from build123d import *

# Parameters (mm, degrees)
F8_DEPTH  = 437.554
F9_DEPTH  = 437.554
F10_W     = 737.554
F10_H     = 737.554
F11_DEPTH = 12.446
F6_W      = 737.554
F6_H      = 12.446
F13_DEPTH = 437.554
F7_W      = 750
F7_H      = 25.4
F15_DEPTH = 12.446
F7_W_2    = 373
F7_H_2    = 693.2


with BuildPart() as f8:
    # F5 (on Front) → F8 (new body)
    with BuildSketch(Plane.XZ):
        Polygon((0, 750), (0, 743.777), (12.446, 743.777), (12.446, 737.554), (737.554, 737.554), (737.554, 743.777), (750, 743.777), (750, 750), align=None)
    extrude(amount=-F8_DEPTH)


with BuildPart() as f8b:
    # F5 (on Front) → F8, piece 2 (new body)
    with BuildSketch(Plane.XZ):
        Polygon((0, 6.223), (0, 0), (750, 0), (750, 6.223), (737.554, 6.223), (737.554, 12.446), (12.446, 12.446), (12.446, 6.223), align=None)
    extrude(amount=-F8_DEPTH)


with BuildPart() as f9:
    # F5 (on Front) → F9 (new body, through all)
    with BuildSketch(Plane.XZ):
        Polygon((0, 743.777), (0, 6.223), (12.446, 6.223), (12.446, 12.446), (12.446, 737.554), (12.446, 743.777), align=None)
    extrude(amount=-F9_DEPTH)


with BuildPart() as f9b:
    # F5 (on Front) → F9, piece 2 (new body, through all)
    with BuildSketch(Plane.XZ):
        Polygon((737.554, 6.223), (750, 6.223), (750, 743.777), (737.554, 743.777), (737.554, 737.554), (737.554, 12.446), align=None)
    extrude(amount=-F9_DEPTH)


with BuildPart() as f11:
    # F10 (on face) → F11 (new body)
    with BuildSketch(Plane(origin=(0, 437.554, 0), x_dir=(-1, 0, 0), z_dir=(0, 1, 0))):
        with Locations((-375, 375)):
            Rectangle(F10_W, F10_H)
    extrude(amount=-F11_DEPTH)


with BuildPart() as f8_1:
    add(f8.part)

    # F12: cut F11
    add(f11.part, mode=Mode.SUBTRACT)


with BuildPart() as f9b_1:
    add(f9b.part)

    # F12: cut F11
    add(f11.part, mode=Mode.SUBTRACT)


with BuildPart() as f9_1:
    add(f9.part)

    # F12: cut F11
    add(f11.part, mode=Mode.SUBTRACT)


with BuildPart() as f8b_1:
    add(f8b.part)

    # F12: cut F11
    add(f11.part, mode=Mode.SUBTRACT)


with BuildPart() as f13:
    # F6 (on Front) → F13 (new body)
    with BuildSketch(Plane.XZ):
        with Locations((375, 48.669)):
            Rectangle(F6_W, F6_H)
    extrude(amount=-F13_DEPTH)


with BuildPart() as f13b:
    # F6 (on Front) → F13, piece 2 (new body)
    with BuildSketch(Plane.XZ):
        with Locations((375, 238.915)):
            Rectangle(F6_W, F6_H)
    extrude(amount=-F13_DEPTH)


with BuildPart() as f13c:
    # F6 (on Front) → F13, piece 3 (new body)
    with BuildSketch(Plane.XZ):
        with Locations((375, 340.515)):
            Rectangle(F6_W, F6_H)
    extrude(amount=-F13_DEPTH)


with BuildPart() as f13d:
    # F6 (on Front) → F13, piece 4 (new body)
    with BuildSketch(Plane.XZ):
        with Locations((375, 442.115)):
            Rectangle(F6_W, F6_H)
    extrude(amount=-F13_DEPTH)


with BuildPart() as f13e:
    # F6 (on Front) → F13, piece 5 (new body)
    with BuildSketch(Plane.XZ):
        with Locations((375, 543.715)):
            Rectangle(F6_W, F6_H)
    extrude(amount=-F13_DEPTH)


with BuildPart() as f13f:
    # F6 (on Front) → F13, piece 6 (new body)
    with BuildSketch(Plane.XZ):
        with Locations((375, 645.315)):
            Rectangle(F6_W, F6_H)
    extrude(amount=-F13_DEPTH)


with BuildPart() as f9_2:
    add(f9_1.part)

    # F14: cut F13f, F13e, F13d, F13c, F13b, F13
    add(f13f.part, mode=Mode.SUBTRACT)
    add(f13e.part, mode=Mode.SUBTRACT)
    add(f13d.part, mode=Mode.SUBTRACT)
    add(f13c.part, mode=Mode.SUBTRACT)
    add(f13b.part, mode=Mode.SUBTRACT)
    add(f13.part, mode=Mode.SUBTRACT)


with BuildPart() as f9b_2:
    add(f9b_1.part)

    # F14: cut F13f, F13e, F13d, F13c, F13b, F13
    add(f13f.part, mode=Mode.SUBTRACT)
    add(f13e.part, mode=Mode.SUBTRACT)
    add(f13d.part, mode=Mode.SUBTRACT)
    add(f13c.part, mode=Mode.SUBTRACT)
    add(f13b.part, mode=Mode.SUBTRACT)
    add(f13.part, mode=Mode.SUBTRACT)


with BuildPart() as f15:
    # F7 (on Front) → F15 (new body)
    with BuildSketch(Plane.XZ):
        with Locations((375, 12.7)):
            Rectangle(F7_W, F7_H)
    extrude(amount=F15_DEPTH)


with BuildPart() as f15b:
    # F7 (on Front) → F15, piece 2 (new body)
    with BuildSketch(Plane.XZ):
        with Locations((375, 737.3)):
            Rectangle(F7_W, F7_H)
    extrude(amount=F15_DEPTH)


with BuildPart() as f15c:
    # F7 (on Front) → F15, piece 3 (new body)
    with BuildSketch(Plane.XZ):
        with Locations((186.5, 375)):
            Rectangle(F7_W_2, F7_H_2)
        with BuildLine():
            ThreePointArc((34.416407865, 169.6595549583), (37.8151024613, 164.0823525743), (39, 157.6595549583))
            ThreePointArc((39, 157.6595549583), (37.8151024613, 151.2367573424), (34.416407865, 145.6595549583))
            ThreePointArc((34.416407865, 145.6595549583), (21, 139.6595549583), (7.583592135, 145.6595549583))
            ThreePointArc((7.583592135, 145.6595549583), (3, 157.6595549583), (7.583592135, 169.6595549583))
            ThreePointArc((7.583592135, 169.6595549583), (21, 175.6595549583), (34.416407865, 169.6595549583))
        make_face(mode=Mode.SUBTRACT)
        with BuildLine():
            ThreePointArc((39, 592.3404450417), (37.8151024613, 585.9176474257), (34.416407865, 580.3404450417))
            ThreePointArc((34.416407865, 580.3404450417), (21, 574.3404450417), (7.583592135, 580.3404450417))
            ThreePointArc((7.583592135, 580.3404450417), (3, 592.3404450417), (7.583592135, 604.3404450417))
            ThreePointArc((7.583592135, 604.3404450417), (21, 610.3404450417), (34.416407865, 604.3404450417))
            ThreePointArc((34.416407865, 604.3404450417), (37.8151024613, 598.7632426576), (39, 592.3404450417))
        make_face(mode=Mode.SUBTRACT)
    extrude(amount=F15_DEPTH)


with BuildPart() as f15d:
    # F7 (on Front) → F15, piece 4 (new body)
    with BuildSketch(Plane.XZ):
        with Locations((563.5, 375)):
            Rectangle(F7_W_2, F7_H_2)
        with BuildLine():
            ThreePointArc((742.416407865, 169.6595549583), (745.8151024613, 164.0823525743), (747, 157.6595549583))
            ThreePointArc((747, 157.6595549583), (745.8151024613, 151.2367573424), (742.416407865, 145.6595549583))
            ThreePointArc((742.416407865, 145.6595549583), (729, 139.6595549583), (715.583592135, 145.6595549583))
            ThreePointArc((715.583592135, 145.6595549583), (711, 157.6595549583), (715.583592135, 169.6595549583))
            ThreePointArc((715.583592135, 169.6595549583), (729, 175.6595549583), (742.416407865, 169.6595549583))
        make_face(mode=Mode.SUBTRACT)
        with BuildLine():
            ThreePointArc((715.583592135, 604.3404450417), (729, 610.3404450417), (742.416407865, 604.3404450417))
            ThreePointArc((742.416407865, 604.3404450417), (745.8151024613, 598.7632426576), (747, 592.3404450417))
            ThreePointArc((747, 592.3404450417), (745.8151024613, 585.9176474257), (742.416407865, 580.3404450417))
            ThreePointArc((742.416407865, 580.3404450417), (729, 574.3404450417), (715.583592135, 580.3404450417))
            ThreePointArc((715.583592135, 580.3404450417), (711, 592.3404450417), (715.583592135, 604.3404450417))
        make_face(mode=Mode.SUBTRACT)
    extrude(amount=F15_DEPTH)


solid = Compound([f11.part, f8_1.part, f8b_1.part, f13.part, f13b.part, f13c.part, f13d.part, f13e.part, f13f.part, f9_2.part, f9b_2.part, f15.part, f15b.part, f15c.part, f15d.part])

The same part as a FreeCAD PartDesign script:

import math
import FreeCAD as App
import Part
import Sketcher
from FreeCAD import Vector
Q = App.Units.Quantity

doc = App.newDocument("Part")
body = doc.addObject("PartDesign::Body", "Body")

sketch1 = body.newObject("Sketcher::SketchObject", "Sketch")
sketch1.AttachmentSupport = (doc.getObject("XZ_Plane"), [""])
sketch1.MapMode = "FlatFace"
sketch1.addGeometry([
    Part.LineSegment(Vector(0, 750, 0), Vector(0, 743.777, 0)),
    Part.LineSegment(Vector(0, 743.777, 0), Vector(12.446, 743.777, 0)),
    Part.LineSegment(Vector(12.446, 743.777, 0), Vector(12.446, 737.554, 0)),
    Part.LineSegment(Vector(12.446, 737.554, 0), Vector(737.554, 737.554, 0)),
    Part.LineSegment(Vector(737.554, 737.554, 0), Vector(737.554, 743.777, 0)),
    Part.LineSegment(Vector(737.554, 743.777, 0), Vector(750, 743.777, 0)),
    Part.LineSegment(Vector(750, 743.777, 0), Vector(750, 750, 0)),
    Part.LineSegment(Vector(750, 750, 0), Vector(0, 750, 0)),
], False)
sketch1.addConstraint([
    Sketcher.Constraint("Coincident", 0, 2, 1, 1),
    Sketcher.Constraint("Coincident", 1, 2, 2, 1),
    Sketcher.Constraint("Coincident", 2, 2, 3, 1),
    Sketcher.Constraint("Coincident", 3, 2, 4, 1),
    Sketcher.Constraint("Coincident", 4, 2, 5, 1),
    Sketcher.Constraint("Coincident", 5, 2, 6, 1),
    Sketcher.Constraint("Coincident", 6, 2, 7, 1),
    Sketcher.Constraint("Coincident", 7, 2, 0, 1),
    Sketcher.Constraint("Vertical", 0),
    Sketcher.Constraint("Horizontal", 1),
    Sketcher.Constraint("Vertical", 2),
    Sketcher.Constraint("Horizontal", 3),
    Sketcher.Constraint("Vertical", 4),
    Sketcher.Constraint("Horizontal", 5),
    Sketcher.Constraint("Vertical", 6),
    Sketcher.Constraint("Horizontal", 7),
    Sketcher.Constraint("PointOnObject", 0, 2, -2),
    Sketcher.Constraint("Horizontal", 1, 2, 4, 2),
    Sketcher.Constraint("Equal", 1, 5),
    Sketcher.Constraint("Equal", 0, 2),
    Sketcher.Constraint("DistanceX", 7, 2, 7, 1, Q("750 mm")),
    Sketcher.Constraint("DistanceY", -1, 1, 6, 2, Q("750 mm")),
    Sketcher.Constraint("DistanceX", 1, 1, 1, 2, Q("12.446 mm")),
    Sketcher.Constraint("DistanceY", 0, 2, 0, 1, Q("6.223 mm")),
])
pad1 = body.newObject("PartDesign::Pad", "Pad")
pad1.Profile = sketch1
pad1.Length = 437.554
pad1.Reversed = True
body2 = doc.addObject("PartDesign::Body", "Body001")

sketch2 = body2.newObject("Sketcher::SketchObject", "Sketch001")
sketch2.AttachmentSupport = (doc.getObject("XZ_Plane001"), [""])
sketch2.MapMode = "FlatFace"
sketch2.addGeometry([
    Part.LineSegment(Vector(0, 6.223, 0), Vector(0, 0, 0)),
    Part.LineSegment(Vector(0, 0, 0), Vector(750, 0, 0)),
    Part.LineSegment(Vector(750, 0, 0), Vector(750, 6.223, 0)),
    Part.LineSegment(Vector(750, 6.223, 0), Vector(737.554, 6.223, 0)),
    Part.LineSegment(Vector(737.554, 6.223, 0), Vector(737.554, 12.446, 0)),
    Part.LineSegment(Vector(737.554, 12.446, 0), Vector(12.446, 12.446, 0)),
    Part.LineSegment(Vector(12.446, 12.446, 0), Vector(12.446, 6.223, 0)),
    Part.LineSegment(Vector(12.446, 6.223, 0), Vector(0, 6.223, 0)),
], False)
sketch2.addConstraint([
    Sketcher.Constraint("Coincident", 0, 2, 1, 1),
    Sketcher.Constraint("Coincident", 1, 2, 2, 1),
    Sketcher.Constraint("Coincident", 2, 2, 3, 1),
    Sketcher.Constraint("Coincident", 3, 2, 4, 1),
    Sketcher.Constraint("Coincident", 4, 2, 5, 1),
    Sketcher.Constraint("Coincident", 5, 2, 6, 1),
    Sketcher.Constraint("Coincident", 6, 2, 7, 1),
    Sketcher.Constraint("Coincident", 7, 2, 0, 1),
    Sketcher.Constraint("Vertical", 0),
    Sketcher.Constraint("Horizontal", 1),
    Sketcher.Constraint("Vertical", 2),
    Sketcher.Constraint("Horizontal", 3),
    Sketcher.Constraint("Vertical", 4),
    Sketcher.Constraint("Horizontal", 5),
    Sketcher.Constraint("Vertical", 6),
    Sketcher.Constraint("Horizontal", 7),
    Sketcher.Constraint("Coincident", 0, 2, -1, 1),
    Sketcher.Constraint("Horizontal", 3, 2, 6, 2),
    Sketcher.Constraint("Equal", 3, 7),
    Sketcher.Constraint("Equal", 2, 4),
    Sketcher.Constraint("DistanceX", 1, 1, 1, 2, Q("750 mm")),
    Sketcher.Constraint("DistanceX", 3, 2, 3, 1, Q("12.446 mm")),
    Sketcher.Constraint("DistanceY", 0, 2, 0, 1, Q("6.223 mm")),
])
pad2 = body2.newObject("PartDesign::Pad", "Pad001")
pad2.Profile = sketch2
pad2.Length = 437.554
pad2.Reversed = True
body3 = doc.addObject("PartDesign::Body", "Body002")

sketch3 = body3.newObject("Sketcher::SketchObject", "Sketch002")
sketch3.AttachmentSupport = (doc.getObject("XZ_Plane002"), [""])
sketch3.MapMode = "FlatFace"
sketch3.addGeometry([
    Part.LineSegment(Vector(0, 743.777, 0), Vector(0, 6.223, 0)),
    Part.LineSegment(Vector(0, 6.223, 0), Vector(12.446, 6.223, 0)),
    Part.LineSegment(Vector(12.446, 6.223, 0), Vector(12.446, 743.777, 0)),
    Part.LineSegment(Vector(12.446, 743.777, 0), Vector(0, 743.777, 0)),
], False)
sketch3.addConstraint([
    Sketcher.Constraint("Coincident", 0, 2, 1, 1),
    Sketcher.Constraint("Coincident", 1, 2, 2, 1),
    Sketcher.Constraint("Coincident", 2, 2, 3, 1),
    Sketcher.Constraint("Coincident", 3, 2, 0, 1),
    Sketcher.Constraint("Vertical", 0),
    Sketcher.Constraint("Horizontal", 1),
    Sketcher.Constraint("Vertical", 2),
    Sketcher.Constraint("Horizontal", 3),
    Sketcher.Constraint("PointOnObject", 0, 2, -2),
    Sketcher.Constraint("DistanceX", 1, 1, 1, 2, Q("12.446 mm")),
    Sketcher.Constraint("DistanceY", 0, 2, 0, 1, Q("737.554 mm")),
    Sketcher.Constraint("DistanceY", -1, 1, 0, 2, Q("6.223 mm")),
])
pad3 = body3.newObject("PartDesign::Pad", "Pad002")
pad3.Profile = sketch3
pad3.Length = 437.554
pad3.Reversed = True
body4 = doc.addObject("PartDesign::Body", "Body003")

sketch4 = body4.newObject("Sketcher::SketchObject", "Sketch003")
sketch4.AttachmentSupport = (doc.getObject("XZ_Plane003"), [""])
sketch4.MapMode = "FlatFace"
sketch4.addGeometry([
    Part.LineSegment(Vector(737.554, 6.223, 0), Vector(750, 6.223, 0)),
    Part.LineSegment(Vector(750, 6.223, 0), Vector(750, 743.777, 0)),
    Part.LineSegment(Vector(750, 743.777, 0), Vector(737.554, 743.777, 0)),
    Part.LineSegment(Vector(737.554, 743.777, 0), Vector(737.554, 6.223, 0)),
], False)
sketch4.addConstraint([
    Sketcher.Constraint("Coincident", 0, 2, 1, 1),
    Sketcher.Constraint("Coincident", 1, 2, 2, 1),
    Sketcher.Constraint("Coincident", 2, 2, 3, 1),
    Sketcher.Constraint("Coincident", 3, 2, 0, 1),
    Sketcher.Constraint("Horizontal", 0),
    Sketcher.Constraint("Vertical", 1),
    Sketcher.Constraint("Horizontal", 2),
    Sketcher.Constraint("Vertical", 3),
    Sketcher.Constraint("DistanceX", -1, 1, 0, 2, Q("750 mm")),
    Sketcher.Constraint("DistanceX", 0, 1, 0, 2, Q("12.446 mm")),
    Sketcher.Constraint("DistanceY", 1, 1, 1, 2, Q("737.554 mm")),
    Sketcher.Constraint("DistanceY", -1, 1, 0, 2, Q("6.223 mm")),
])
pad4 = body4.newObject("PartDesign::Pad", "Pad003")
pad4.Profile = sketch4
pad4.Length = 437.554
pad4.Reversed = True
body5 = doc.addObject("PartDesign::Body", "Body004")

sketch5 = body5.newObject("Sketcher::SketchObject", "Sketch004")
sketch5.AttachmentSupport = (doc.getObject("XZ_Plane004"), [""])
sketch5.MapMode = "FlatFace"
sketch5.AttachmentOffset = App.Placement(Vector(0, 0, -437.554), App.Rotation())
sketch5.addGeometry([
    Part.LineSegment(Vector(743.777, 743.777, 0), Vector(743.777, 6.223, 0)),
    Part.LineSegment(Vector(743.777, 6.223, 0), Vector(6.223, 6.223, 0)),
    Part.LineSegment(Vector(6.223, 6.223, 0), Vector(6.223, 743.777, 0)),
    Part.LineSegment(Vector(6.223, 743.777, 0), Vector(743.777, 743.777, 0)),
], False)
sketch5.addConstraint([
    Sketcher.Constraint("Coincident", 0, 2, 1, 1),
    Sketcher.Constraint("Coincident", 1, 2, 2, 1),
    Sketcher.Constraint("Coincident", 2, 2, 3, 1),
    Sketcher.Constraint("Coincident", 3, 2, 0, 1),
    Sketcher.Constraint("Vertical", 0),
    Sketcher.Constraint("Horizontal", 1),
    Sketcher.Constraint("Vertical", 2),
    Sketcher.Constraint("Horizontal", 3),
    Sketcher.Constraint("Equal", 3, 0),
    Sketcher.Constraint("DistanceX", 1, 2, 1, 1, Q("737.554 mm")),
    Sketcher.Constraint("DistanceX", -1, 1, 0, 2, Q("743.777 mm")),
    Sketcher.Constraint("DistanceY", -1, 1, 0, 2, Q("6.223 mm")),
])
pad5 = body5.newObject("PartDesign::Pad", "Pad004")
pad5.Profile = sketch5
pad5.Length = 12.446
doc.recompute()

body6 = doc.addObject("PartDesign::Body", "Body005")
body6.BaseFeature = body5
boolean = body.newObject("PartDesign::Boolean", "Boolean")
boolean.Type = "Cut"
boolean.addObjects([body6])
doc.recompute()

body7 = doc.addObject("PartDesign::Body", "Body006")
body7.BaseFeature = body5
boolean2 = body4.newObject("PartDesign::Boolean", "Boolean001")
boolean2.Type = "Cut"
boolean2.addObjects([body7])
doc.recompute()

body8 = doc.addObject("PartDesign::Body", "Body007")
body8.BaseFeature = body5
boolean3 = body3.newObject("PartDesign::Boolean", "Boolean002")
boolean3.Type = "Cut"
boolean3.addObjects([body8])
doc.recompute()

body9 = doc.addObject("PartDesign::Body", "Body008")
body9.BaseFeature = body5
boolean4 = body2.newObject("PartDesign::Boolean", "Boolean003")
boolean4.Type = "Cut"
boolean4.addObjects([body9])
doc.recompute()
body10 = doc.addObject("PartDesign::Body", "Body009")

sketch6 = body10.newObject("Sketcher::SketchObject", "Sketch005")
sketch6.AttachmentSupport = (doc.getObject("XZ_Plane009"), [""])
sketch6.MapMode = "FlatFace"
sketch6.addGeometry([
    Part.LineSegment(Vector(6.223, 54.892, 0), Vector(6.223, 42.446, 0)),
    Part.LineSegment(Vector(6.223, 42.446, 0), Vector(743.777, 42.446, 0)),
    Part.LineSegment(Vector(743.777, 42.446, 0), Vector(743.777, 54.892, 0)),
    Part.LineSegment(Vector(743.777, 54.892, 0), Vector(6.223, 54.892, 0)),
], False)
sketch6.addConstraint([
    Sketcher.Constraint("Coincident", 0, 2, 1, 1),
    Sketcher.Constraint("Coincident", 1, 2, 2, 1),
    Sketcher.Constraint("Coincident", 2, 2, 3, 1),
    Sketcher.Constraint("Coincident", 3, 2, 0, 1),
    Sketcher.Constraint("Vertical", 0),
    Sketcher.Constraint("Horizontal", 1),
    Sketcher.Constraint("Vertical", 2),
    Sketcher.Constraint("Horizontal", 3),
    Sketcher.Constraint("DistanceX", 1, 1, 1, 2, Q("737.554 mm")),
    Sketcher.Constraint("DistanceY", 0, 2, 0, 1, Q("12.446 mm")),
    Sketcher.Constraint("DistanceX", -1, 1, 0, 2, Q("6.223 mm")),
    Sketcher.Constraint("DistanceY", -1, 1, 0, 2, Q("42.446 mm")),
])
pad6 = body10.newObject("PartDesign::Pad", "Pad005")
pad6.Profile = sketch6
pad6.Length = 437.554
pad6.Reversed = True
body11 = doc.addObject("PartDesign::Body", "Body010")

sketch7 = body11.newObject("Sketcher::SketchObject", "Sketch006")
sketch7.AttachmentSupport = (doc.getObject("XZ_Plane010"), [""])
sketch7.MapMode = "FlatFace"
sketch7.addGeometry([
    Part.LineSegment(Vector(6.223, 245.138, 0), Vector(6.223, 232.692, 0)),
    Part.LineSegment(Vector(6.223, 232.692, 0), Vector(743.777, 232.692, 0)),
    Part.LineSegment(Vector(743.777, 232.692, 0), Vector(743.777, 245.138, 0)),
    Part.LineSegment(Vector(743.777, 245.138, 0), Vector(6.223, 245.138, 0)),
], False)
sketch7.addConstraint([
    Sketcher.Constraint("Coincident", 0, 2, 1, 1),
    Sketcher.Constraint("Coincident", 1, 2, 2, 1),
    Sketcher.Constraint("Coincident", 2, 2, 3, 1),
    Sketcher.Constraint("Coincident", 3, 2, 0, 1),
    Sketcher.Constraint("Vertical", 0),
    Sketcher.Constraint("Horizontal", 1),
    Sketcher.Constraint("Vertical", 2),
    Sketcher.Constraint("Horizontal", 3),
    Sketcher.Constraint("DistanceX", 1, 1, 1, 2, Q("737.554 mm")),
    Sketcher.Constraint("DistanceY", 0, 2, 0, 1, Q("12.446 mm")),
    Sketcher.Constraint("DistanceX", -1, 1, 0, 2, Q("6.223 mm")),
    Sketcher.Constraint("DistanceY", -1, 1, 0, 2, Q("232.692 mm")),
])
pad7 = body11.newObject("PartDesign::Pad", "Pad006")
pad7.Profile = sketch7
pad7.Length = 437.554
pad7.Reversed = True
body12 = doc.addObject("PartDesign::Body", "Body011")

sketch8 = body12.newObject("Sketcher::SketchObject", "Sketch007")
sketch8.AttachmentSupport = (doc.getObject("XZ_Plane011"), [""])
sketch8.MapMode = "FlatFace"
sketch8.addGeometry([
    Part.LineSegment(Vector(6.223, 346.738, 0), Vector(6.223, 334.292, 0)),
    Part.LineSegment(Vector(6.223, 334.292, 0), Vector(743.777, 334.292, 0)),
    Part.LineSegment(Vector(743.777, 334.292, 0), Vector(743.777, 346.738, 0)),
    Part.LineSegment(Vector(743.777, 346.738, 0), Vector(6.223, 346.738, 0)),
], False)
sketch8.addConstraint([
    Sketcher.Constraint("Coincident", 0, 2, 1, 1),
    Sketcher.Constraint("Coincident", 1, 2, 2, 1),
    Sketcher.Constraint("Coincident", 2, 2, 3, 1),
    Sketcher.Constraint("Coincident", 3, 2, 0, 1),
    Sketcher.Constraint("Vertical", 0),
    Sketcher.Constraint("Horizontal", 1),
    Sketcher.Constraint("Vertical", 2),
    Sketcher.Constraint("Horizontal", 3),
    Sketcher.Constraint("DistanceX", 1, 1, 1, 2, Q("737.554 mm")),
    Sketcher.Constraint("DistanceY", 0, 2, 0, 1, Q("12.446 mm")),
    Sketcher.Constraint("DistanceX", -1, 1, 0, 2, Q("6.223 mm")),
    Sketcher.Constraint("DistanceY", -1, 1, 0, 2, Q("334.292 mm")),
])
pad8 = body12.newObject("PartDesign::Pad", "Pad007")
pad8.Profile = sketch8
pad8.Length = 437.554
pad8.Reversed = True
body13 = doc.addObject("PartDesign::Body", "Body012")

sketch9 = body13.newObject("Sketcher::SketchObject", "Sketch008")
sketch9.AttachmentSupport = (doc.getObject("XZ_Plane012"), [""])
sketch9.MapMode = "FlatFace"
sketch9.addGeometry([
    Part.LineSegment(Vector(6.223, 448.338, 0), Vector(6.223, 435.892, 0)),
    Part.LineSegment(Vector(6.223, 435.892, 0), Vector(743.777, 435.892, 0)),
    Part.LineSegment(Vector(743.777, 435.892, 0), Vector(743.777, 448.338, 0)),
    Part.LineSegment(Vector(743.777, 448.338, 0), Vector(6.223, 448.338, 0)),
], False)
sketch9.addConstraint([
    Sketcher.Constraint("Coincident", 0, 2, 1, 1),
    Sketcher.Constraint("Coincident", 1, 2, 2, 1),
    Sketcher.Constraint("Coincident", 2, 2, 3, 1),
    Sketcher.Constraint("Coincident", 3, 2, 0, 1),
    Sketcher.Constraint("Vertical", 0),
    Sketcher.Constraint("Horizontal", 1),
    Sketcher.Constraint("Vertical", 2),
    Sketcher.Constraint("Horizontal", 3),
    Sketcher.Constraint("DistanceX", 1, 1, 1, 2, Q("737.554 mm")),
    Sketcher.Constraint("DistanceY", 0, 2, 0, 1, Q("12.446 mm")),
    Sketcher.Constraint("DistanceX", -1, 1, 0, 2, Q("6.223 mm")),
    Sketcher.Constraint("DistanceY", -1, 1, 0, 2, Q("435.892 mm")),
])
pad9 = body13.newObject("PartDesign::Pad", "Pad008")
pad9.Profile = sketch9
pad9.Length = 437.554
pad9.Reversed = True
body14 = doc.addObject("PartDesign::Body", "Body013")

sketch10 = body14.newObject("Sketcher::SketchObject", "Sketch009")
sketch10.AttachmentSupport = (doc.getObject("XZ_Plane013"), [""])
sketch10.MapMode = "FlatFace"
sketch10.addGeometry([
    Part.LineSegment(Vector(6.223, 549.938, 0), Vector(6.223, 537.492, 0)),
    Part.LineSegment(Vector(6.223, 537.492, 0), Vector(743.777, 537.492, 0)),
    Part.LineSegment(Vector(743.777, 537.492, 0), Vector(743.777, 549.938, 0)),
    Part.LineSegment(Vector(743.777, 549.938, 0), Vector(6.223, 549.938, 0)),
], False)
sketch10.addConstraint([
    Sketcher.Constraint("Coincident", 0, 2, 1, 1),
    Sketcher.Constraint("Coincident", 1, 2, 2, 1),
    Sketcher.Constraint("Coincident", 2, 2, 3, 1),
    Sketcher.Constraint("Coincident", 3, 2, 0, 1),
    Sketcher.Constraint("Vertical", 0),
    Sketcher.Constraint("Horizontal", 1),
    Sketcher.Constraint("Vertical", 2),
    Sketcher.Constraint("Horizontal", 3),
    Sketcher.Constraint("DistanceX", 1, 1, 1, 2, Q("737.554 mm")),
    Sketcher.Constraint("DistanceY", 0, 2, 0, 1, Q("12.446 mm")),
    Sketcher.Constraint("DistanceX", -1, 1, 0, 2, Q("6.223 mm")),
    Sketcher.Constraint("DistanceY", -1, 1, 0, 2, Q("537.492 mm")),
])
pad10 = body14.newObject("PartDesign::Pad", "Pad009")
pad10.Profile = sketch10
pad10.Length = 437.554
pad10.Reversed = True
body15 = doc.addObject("PartDesign::Body", "Body014")

sketch11 = body15.newObject("Sketcher::SketchObject", "Sketch010")
sketch11.AttachmentSupport = (doc.getObject("XZ_Plane014"), [""])
sketch11.MapMode = "FlatFace"
sketch11.addGeometry([
    Part.LineSegment(Vector(6.223, 651.538, 0), Vector(6.223, 639.092, 0)),
    Part.LineSegment(Vector(6.223, 639.092, 0), Vector(743.777, 639.092, 0)),
    Part.LineSegment(Vector(743.777, 639.092, 0), Vector(743.777, 651.538, 0)),
    Part.LineSegment(Vector(743.777, 651.538, 0), Vector(6.223, 651.538, 0)),
], False)
sketch11.addConstraint([
    Sketcher.Constraint("Coincident", 0, 2, 1, 1),
    Sketcher.Constraint("Coincident", 1, 2, 2, 1),
    Sketcher.Constraint("Coincident", 2, 2, 3, 1),
    Sketcher.Constraint("Coincident", 3, 2, 0, 1),
    Sketcher.Constraint("Vertical", 0),
    Sketcher.Constraint("Horizontal", 1),
    Sketcher.Constraint("Vertical", 2),
    Sketcher.Constraint("Horizontal", 3),
    Sketcher.Constraint("DistanceX", 1, 1, 1, 2, Q("737.554 mm")),
    Sketcher.Constraint("DistanceY", 0, 2, 0, 1, Q("12.446 mm")),
    Sketcher.Constraint("DistanceX", -1, 1, 0, 2, Q("6.223 mm")),
    Sketcher.Constraint("DistanceY", -1, 1, 0, 2, Q("639.092 mm")),
])
pad11 = body15.newObject("PartDesign::Pad", "Pad010")
pad11.Profile = sketch11
pad11.Length = 437.554
pad11.Reversed = True
doc.recompute()

body16 = doc.addObject("PartDesign::Body", "Body015")
body16.BaseFeature = body15
boolean5 = body3.newObject("PartDesign::Boolean", "Boolean004")
boolean5.Type = "Cut"
boolean5.addObjects([body16])
doc.recompute()

body17 = doc.addObject("PartDesign::Body", "Body016")
body17.BaseFeature = body14
boolean6 = body3.newObject("PartDesign::Boolean", "Boolean005")
boolean6.Type = "Cut"
boolean6.addObjects([body17])
doc.recompute()

body18 = doc.addObject("PartDesign::Body", "Body017")
body18.BaseFeature = body13
boolean7 = body3.newObject("PartDesign::Boolean", "Boolean006")
boolean7.Type = "Cut"
boolean7.addObjects([body18])
doc.recompute()

body19 = doc.addObject("PartDesign::Body", "Body018")
body19.BaseFeature = body12
boolean8 = body3.newObject("PartDesign::Boolean", "Boolean007")
boolean8.Type = "Cut"
boolean8.addObjects([body19])
doc.recompute()

body20 = doc.addObject("PartDesign::Body", "Body019")
body20.BaseFeature = body11
boolean9 = body3.newObject("PartDesign::Boolean", "Boolean008")
boolean9.Type = "Cut"
boolean9.addObjects([body20])
doc.recompute()

body21 = doc.addObject("PartDesign::Body", "Body020")
body21.BaseFeature = body10
boolean10 = body3.newObject("PartDesign::Boolean", "Boolean009")
boolean10.Type = "Cut"
boolean10.addObjects([body21])
doc.recompute()

body22 = doc.addObject("PartDesign::Body", "Body021")
body22.BaseFeature = body15
boolean11 = body4.newObject("PartDesign::Boolean", "Boolean010")
boolean11.Type = "Cut"
boolean11.addObjects([body22])
doc.recompute()

body23 = doc.addObject("PartDesign::Body", "Body022")
body23.BaseFeature = body14
boolean12 = body4.newObject("PartDesign::Boolean", "Boolean011")
boolean12.Type = "Cut"
boolean12.addObjects([body23])
doc.recompute()

body24 = doc.addObject("PartDesign::Body", "Body023")
body24.BaseFeature = body13
boolean13 = body4.newObject("PartDesign::Boolean", "Boolean012")
boolean13.Type = "Cut"
boolean13.addObjects([body24])
doc.recompute()

body25 = doc.addObject("PartDesign::Body", "Body024")
body25.BaseFeature = body12
boolean14 = body4.newObject("PartDesign::Boolean", "Boolean013")
boolean14.Type = "Cut"
boolean14.addObjects([body25])
doc.recompute()

body26 = doc.addObject("PartDesign::Body", "Body025")
body26.BaseFeature = body11
boolean15 = body4.newObject("PartDesign::Boolean", "Boolean014")
boolean15.Type = "Cut"
boolean15.addObjects([body26])
doc.recompute()

body27 = doc.addObject("PartDesign::Body", "Body026")
body27.BaseFeature = body10
boolean16 = body4.newObject("PartDesign::Boolean", "Boolean015")
boolean16.Type = "Cut"
boolean16.addObjects([body27])
doc.recompute()
body28 = doc.addObject("PartDesign::Body", "Body027")

sketch12 = body28.newObject("Sketcher::SketchObject", "Sketch011")
sketch12.AttachmentSupport = (doc.getObject("XZ_Plane027"), [""])
sketch12.MapMode = "FlatFace"
sketch12.addGeometry([
    Part.LineSegment(Vector(0, 25.4, 0), Vector(0, 0, 0)),
    Part.LineSegment(Vector(0, 0, 0), Vector(750, 0, 0)),
    Part.LineSegment(Vector(750, 0, 0), Vector(750, 25.4, 0)),
    Part.LineSegment(Vector(750, 25.4, 0), Vector(0, 25.4, 0)),
], False)
sketch12.addConstraint([
    Sketcher.Constraint("Coincident", 0, 2, 1, 1),
    Sketcher.Constraint("Coincident", 1, 2, 2, 1),
    Sketcher.Constraint("Coincident", 2, 2, 3, 1),
    Sketcher.Constraint("Coincident", 3, 2, 0, 1),
    Sketcher.Constraint("Vertical", 0),
    Sketcher.Constraint("Horizontal", 1),
    Sketcher.Constraint("Vertical", 2),
    Sketcher.Constraint("Horizontal", 3),
    Sketcher.Constraint("Coincident", 0, 2, -1, 1),
    Sketcher.Constraint("DistanceX", 1, 1, 1, 2, Q("750 mm")),
    Sketcher.Constraint("DistanceY", 0, 2, 0, 1, Q("25.4 mm")),
])
pad12 = body28.newObject("PartDesign::Pad", "Pad011")
pad12.Profile = sketch12
pad12.Length = 12.446
body29 = doc.addObject("PartDesign::Body", "Body028")

sketch13 = body29.newObject("Sketcher::SketchObject", "Sketch012")
sketch13.AttachmentSupport = (doc.getObject("XZ_Plane028"), [""])
sketch13.MapMode = "FlatFace"
sketch13.addGeometry([
    Part.LineSegment(Vector(0, 750, 0), Vector(0, 724.6, 0)),
    Part.LineSegment(Vector(0, 724.6, 0), Vector(750, 724.6, 0)),
    Part.LineSegment(Vector(750, 724.6, 0), Vector(750, 750, 0)),
    Part.LineSegment(Vector(750, 750, 0), Vector(0, 750, 0)),
], False)
sketch13.addConstraint([
    Sketcher.Constraint("Coincident", 0, 2, 1, 1),
    Sketcher.Constraint("Coincident", 1, 2, 2, 1),
    Sketcher.Constraint("Coincident", 2, 2, 3, 1),
    Sketcher.Constraint("Coincident", 3, 2, 0, 1),
    Sketcher.Constraint("Vertical", 0),
    Sketcher.Constraint("Horizontal", 1),
    Sketcher.Constraint("Vertical", 2),
    Sketcher.Constraint("Horizontal", 3),
    Sketcher.Constraint("PointOnObject", 0, 2, -2),
    Sketcher.Constraint("DistanceX", 1, 1, 1, 2, Q("750 mm")),
    Sketcher.Constraint("DistanceY", 0, 2, 0, 1, Q("25.4 mm")),
    Sketcher.Constraint("DistanceY", -1, 1, 2, 2, Q("750 mm")),
])
pad13 = body29.newObject("PartDesign::Pad", "Pad012")
pad13.Profile = sketch13
pad13.Length = 12.446
body30 = doc.addObject("PartDesign::Body", "Body029")

sketch14 = body30.newObject("Sketcher::SketchObject", "Sketch013")
sketch14.AttachmentSupport = (doc.getObject("XZ_Plane029"), [""])
sketch14.MapMode = "FlatFace"
sketch14.addGeometry([
    Part.LineSegment(Vector(0, 721.6, 0), Vector(0, 28.4, 0)),
    Part.LineSegment(Vector(0, 28.4, 0), Vector(373, 28.4, 0)),
    Part.LineSegment(Vector(373, 28.4, 0), Vector(373, 721.6, 0)),
    Part.LineSegment(Vector(373, 721.6, 0), Vector(0, 721.6, 0)),
    Part.ArcOfCircle(Part.Circle(Vector(21, 157.659555, 0), Vector(0, 0, 1), 18), math.radians(0), math.radians(318.189685)),
    Part.ArcOfCircle(Part.Circle(Vector(21, 157.659555, 0), Vector(0, 0, 1), 18), math.radians(-41.810315), math.radians(0)),
    Part.ArcOfCircle(Part.Circle(Vector(21, 592.340445, 0), Vector(0, 0, 1), 18), math.radians(0), math.radians(41.810315)),
    Part.ArcOfCircle(Part.Circle(Vector(21, 592.340445, 0), Vector(0, 0, 1), 18), math.radians(-138.189685), math.radians(0)),
    Part.ArcOfCircle(Part.Circle(Vector(21, 592.340445, 0), Vector(0, 0, 1), 18), math.radians(41.810315), math.radians(221.810315)),
], False)
sketch14.addConstraint([
    Sketcher.Constraint("Coincident", 0, 2, 1, 1),
    Sketcher.Constraint("Coincident", 1, 2, 2, 1),
    Sketcher.Constraint("Coincident", 2, 2, 3, 1),
    Sketcher.Constraint("Coincident", 3, 2, 0, 1),
    Sketcher.Constraint("Tangent", 4, 1, 5, 2),
    Sketcher.Constraint("Coincident", 5, 1, 4, 2),
    Sketcher.Constraint("Tangent", 6, 1, 7, 2),
    Sketcher.Constraint("Tangent", 7, 1, 8, 2),
    Sketcher.Constraint("Tangent", 8, 1, 6, 2),
    Sketcher.Constraint("Vertical", 0),
    Sketcher.Constraint("Horizontal", 1),
    Sketcher.Constraint("Vertical", 2),
    Sketcher.Constraint("Horizontal", 3),
    Sketcher.Constraint("Equal", 5, 6),
    Sketcher.Constraint("PointOnObject", 0, 2, -2),
    Sketcher.Constraint("Horizontal", 5, 3, 4, 1),
    Sketcher.Constraint("Horizontal", 8, 3, 6, 1),
    Sketcher.Constraint("Vertical", 5, 3, 6, 3),
    Sketcher.Constraint("Vertical", 5, 1, 8, 1),
    Sketcher.Constraint("Radius", 4, Q("18 mm")),
    Sketcher.Constraint("DistanceX", 1, 1, 1, 2, Q("373 mm")),
    Sketcher.Constraint("DistanceY", 0, 2, 0, 1, Q("693.2 mm")),
    Sketcher.Constraint("DistanceX", -1, 1, 4, 3, Q("21 mm")),
    Sketcher.Constraint("DistanceY", 5, 1, 4, 1, Q("12 mm")),
    Sketcher.Constraint("DistanceY", 7, 1, 6, 3, Q("12 mm")),
    Sketcher.Constraint("DistanceY", -1, 1, 0, 2, Q("28.4 mm")),
    Sketcher.Constraint("DistanceY", 4, 3, 6, 3, Q("434.68089 mm")),
    Sketcher.Constraint("DistanceY", -1, 1, 4, 3, Q("157.659555 mm")),
])
pad14 = body30.newObject("PartDesign::Pad", "Pad013")
pad14.Profile = sketch14
pad14.Length = 12.446
body31 = doc.addObject("PartDesign::Body", "Body030")

sketch15 = body31.newObject("Sketcher::SketchObject", "Sketch014")
sketch15.AttachmentSupport = (doc.getObject("XZ_Plane030"), [""])
sketch15.MapMode = "FlatFace"
sketch15.addGeometry([
    Part.LineSegment(Vector(377, 721.6, 0), Vector(377, 28.4, 0)),
    Part.LineSegment(Vector(377, 28.4, 0), Vector(750, 28.4, 0)),
    Part.LineSegment(Vector(750, 28.4, 0), Vector(750, 721.6, 0)),
    Part.LineSegment(Vector(750, 721.6, 0), Vector(377, 721.6, 0)),
    Part.ArcOfCircle(Part.Circle(Vector(729, 157.659555, 0), Vector(0, 0, 1), 18), math.radians(0), math.radians(318.189685)),
    Part.ArcOfCircle(Part.Circle(Vector(729, 157.659555, 0), Vector(0, 0, 1), 18), math.radians(-41.810315), math.radians(0)),
    Part.ArcOfCircle(Part.Circle(Vector(729, 592.340445, 0), Vector(0, 0, 1), 18), math.radians(41.810315), math.radians(221.810315)),
    Part.ArcOfCircle(Part.Circle(Vector(729, 592.340445, 0), Vector(0, 0, 1), 18), math.radians(0), math.radians(41.810315)),
    Part.ArcOfCircle(Part.Circle(Vector(729, 592.340445, 0), Vector(0, 0, 1), 18), math.radians(-138.189685), math.radians(0)),
], False)
sketch15.addConstraint([
    Sketcher.Constraint("Coincident", 0, 2, 1, 1),
    Sketcher.Constraint("Coincident", 1, 2, 2, 1),
    Sketcher.Constraint("Coincident", 2, 2, 3, 1),
    Sketcher.Constraint("Coincident", 3, 2, 0, 1),
    Sketcher.Constraint("Tangent", 4, 1, 5, 2),
    Sketcher.Constraint("Coincident", 5, 1, 4, 2),
    Sketcher.Constraint("Tangent", 6, 1, 7, 2),
    Sketcher.Constraint("Tangent", 7, 1, 8, 2),
    Sketcher.Constraint("Tangent", 8, 1, 6, 2),
    Sketcher.Constraint("Vertical", 0),
    Sketcher.Constraint("Horizontal", 1),
    Sketcher.Constraint("Vertical", 2),
    Sketcher.Constraint("Horizontal", 3),
    Sketcher.Constraint("Equal", 5, 6),
    Sketcher.Constraint("Horizontal", 5, 3, 4, 1),
    Sketcher.Constraint("Horizontal", 8, 3, 7, 1),
    Sketcher.Constraint("Vertical", 5, 3, 6, 3),
    Sketcher.Constraint("Vertical", 5, 1, 6, 1),
    Sketcher.Constraint("Radius", 4, Q("18 mm")),
    Sketcher.Constraint("DistanceX", 1, 1, 1, 2, Q("373 mm")),
    Sketcher.Constraint("DistanceY", 0, 2, 0, 1, Q("693.2 mm")),
    Sketcher.Constraint("DistanceX", -1, 1, 4, 3, Q("729 mm")),
    Sketcher.Constraint("DistanceX", -1, 1, 0, 2, Q("377 mm")),
    Sketcher.Constraint("DistanceY", 5, 1, 4, 1, Q("12 mm")),
    Sketcher.Constraint("DistanceY", 8, 1, 6, 3, Q("12 mm")),
    Sketcher.Constraint("DistanceY", -1, 1, 0, 2, Q("28.4 mm")),
    Sketcher.Constraint("DistanceY", 4, 3, 6, 3, Q("434.68089 mm")),
    Sketcher.Constraint("DistanceY", -1, 1, 4, 3, Q("157.659555 mm")),
])
pad15 = body31.newObject("PartDesign::Pad", "Pad014")
pad15.Profile = sketch15
pad15.Length = 12.446

doc.recompute()
